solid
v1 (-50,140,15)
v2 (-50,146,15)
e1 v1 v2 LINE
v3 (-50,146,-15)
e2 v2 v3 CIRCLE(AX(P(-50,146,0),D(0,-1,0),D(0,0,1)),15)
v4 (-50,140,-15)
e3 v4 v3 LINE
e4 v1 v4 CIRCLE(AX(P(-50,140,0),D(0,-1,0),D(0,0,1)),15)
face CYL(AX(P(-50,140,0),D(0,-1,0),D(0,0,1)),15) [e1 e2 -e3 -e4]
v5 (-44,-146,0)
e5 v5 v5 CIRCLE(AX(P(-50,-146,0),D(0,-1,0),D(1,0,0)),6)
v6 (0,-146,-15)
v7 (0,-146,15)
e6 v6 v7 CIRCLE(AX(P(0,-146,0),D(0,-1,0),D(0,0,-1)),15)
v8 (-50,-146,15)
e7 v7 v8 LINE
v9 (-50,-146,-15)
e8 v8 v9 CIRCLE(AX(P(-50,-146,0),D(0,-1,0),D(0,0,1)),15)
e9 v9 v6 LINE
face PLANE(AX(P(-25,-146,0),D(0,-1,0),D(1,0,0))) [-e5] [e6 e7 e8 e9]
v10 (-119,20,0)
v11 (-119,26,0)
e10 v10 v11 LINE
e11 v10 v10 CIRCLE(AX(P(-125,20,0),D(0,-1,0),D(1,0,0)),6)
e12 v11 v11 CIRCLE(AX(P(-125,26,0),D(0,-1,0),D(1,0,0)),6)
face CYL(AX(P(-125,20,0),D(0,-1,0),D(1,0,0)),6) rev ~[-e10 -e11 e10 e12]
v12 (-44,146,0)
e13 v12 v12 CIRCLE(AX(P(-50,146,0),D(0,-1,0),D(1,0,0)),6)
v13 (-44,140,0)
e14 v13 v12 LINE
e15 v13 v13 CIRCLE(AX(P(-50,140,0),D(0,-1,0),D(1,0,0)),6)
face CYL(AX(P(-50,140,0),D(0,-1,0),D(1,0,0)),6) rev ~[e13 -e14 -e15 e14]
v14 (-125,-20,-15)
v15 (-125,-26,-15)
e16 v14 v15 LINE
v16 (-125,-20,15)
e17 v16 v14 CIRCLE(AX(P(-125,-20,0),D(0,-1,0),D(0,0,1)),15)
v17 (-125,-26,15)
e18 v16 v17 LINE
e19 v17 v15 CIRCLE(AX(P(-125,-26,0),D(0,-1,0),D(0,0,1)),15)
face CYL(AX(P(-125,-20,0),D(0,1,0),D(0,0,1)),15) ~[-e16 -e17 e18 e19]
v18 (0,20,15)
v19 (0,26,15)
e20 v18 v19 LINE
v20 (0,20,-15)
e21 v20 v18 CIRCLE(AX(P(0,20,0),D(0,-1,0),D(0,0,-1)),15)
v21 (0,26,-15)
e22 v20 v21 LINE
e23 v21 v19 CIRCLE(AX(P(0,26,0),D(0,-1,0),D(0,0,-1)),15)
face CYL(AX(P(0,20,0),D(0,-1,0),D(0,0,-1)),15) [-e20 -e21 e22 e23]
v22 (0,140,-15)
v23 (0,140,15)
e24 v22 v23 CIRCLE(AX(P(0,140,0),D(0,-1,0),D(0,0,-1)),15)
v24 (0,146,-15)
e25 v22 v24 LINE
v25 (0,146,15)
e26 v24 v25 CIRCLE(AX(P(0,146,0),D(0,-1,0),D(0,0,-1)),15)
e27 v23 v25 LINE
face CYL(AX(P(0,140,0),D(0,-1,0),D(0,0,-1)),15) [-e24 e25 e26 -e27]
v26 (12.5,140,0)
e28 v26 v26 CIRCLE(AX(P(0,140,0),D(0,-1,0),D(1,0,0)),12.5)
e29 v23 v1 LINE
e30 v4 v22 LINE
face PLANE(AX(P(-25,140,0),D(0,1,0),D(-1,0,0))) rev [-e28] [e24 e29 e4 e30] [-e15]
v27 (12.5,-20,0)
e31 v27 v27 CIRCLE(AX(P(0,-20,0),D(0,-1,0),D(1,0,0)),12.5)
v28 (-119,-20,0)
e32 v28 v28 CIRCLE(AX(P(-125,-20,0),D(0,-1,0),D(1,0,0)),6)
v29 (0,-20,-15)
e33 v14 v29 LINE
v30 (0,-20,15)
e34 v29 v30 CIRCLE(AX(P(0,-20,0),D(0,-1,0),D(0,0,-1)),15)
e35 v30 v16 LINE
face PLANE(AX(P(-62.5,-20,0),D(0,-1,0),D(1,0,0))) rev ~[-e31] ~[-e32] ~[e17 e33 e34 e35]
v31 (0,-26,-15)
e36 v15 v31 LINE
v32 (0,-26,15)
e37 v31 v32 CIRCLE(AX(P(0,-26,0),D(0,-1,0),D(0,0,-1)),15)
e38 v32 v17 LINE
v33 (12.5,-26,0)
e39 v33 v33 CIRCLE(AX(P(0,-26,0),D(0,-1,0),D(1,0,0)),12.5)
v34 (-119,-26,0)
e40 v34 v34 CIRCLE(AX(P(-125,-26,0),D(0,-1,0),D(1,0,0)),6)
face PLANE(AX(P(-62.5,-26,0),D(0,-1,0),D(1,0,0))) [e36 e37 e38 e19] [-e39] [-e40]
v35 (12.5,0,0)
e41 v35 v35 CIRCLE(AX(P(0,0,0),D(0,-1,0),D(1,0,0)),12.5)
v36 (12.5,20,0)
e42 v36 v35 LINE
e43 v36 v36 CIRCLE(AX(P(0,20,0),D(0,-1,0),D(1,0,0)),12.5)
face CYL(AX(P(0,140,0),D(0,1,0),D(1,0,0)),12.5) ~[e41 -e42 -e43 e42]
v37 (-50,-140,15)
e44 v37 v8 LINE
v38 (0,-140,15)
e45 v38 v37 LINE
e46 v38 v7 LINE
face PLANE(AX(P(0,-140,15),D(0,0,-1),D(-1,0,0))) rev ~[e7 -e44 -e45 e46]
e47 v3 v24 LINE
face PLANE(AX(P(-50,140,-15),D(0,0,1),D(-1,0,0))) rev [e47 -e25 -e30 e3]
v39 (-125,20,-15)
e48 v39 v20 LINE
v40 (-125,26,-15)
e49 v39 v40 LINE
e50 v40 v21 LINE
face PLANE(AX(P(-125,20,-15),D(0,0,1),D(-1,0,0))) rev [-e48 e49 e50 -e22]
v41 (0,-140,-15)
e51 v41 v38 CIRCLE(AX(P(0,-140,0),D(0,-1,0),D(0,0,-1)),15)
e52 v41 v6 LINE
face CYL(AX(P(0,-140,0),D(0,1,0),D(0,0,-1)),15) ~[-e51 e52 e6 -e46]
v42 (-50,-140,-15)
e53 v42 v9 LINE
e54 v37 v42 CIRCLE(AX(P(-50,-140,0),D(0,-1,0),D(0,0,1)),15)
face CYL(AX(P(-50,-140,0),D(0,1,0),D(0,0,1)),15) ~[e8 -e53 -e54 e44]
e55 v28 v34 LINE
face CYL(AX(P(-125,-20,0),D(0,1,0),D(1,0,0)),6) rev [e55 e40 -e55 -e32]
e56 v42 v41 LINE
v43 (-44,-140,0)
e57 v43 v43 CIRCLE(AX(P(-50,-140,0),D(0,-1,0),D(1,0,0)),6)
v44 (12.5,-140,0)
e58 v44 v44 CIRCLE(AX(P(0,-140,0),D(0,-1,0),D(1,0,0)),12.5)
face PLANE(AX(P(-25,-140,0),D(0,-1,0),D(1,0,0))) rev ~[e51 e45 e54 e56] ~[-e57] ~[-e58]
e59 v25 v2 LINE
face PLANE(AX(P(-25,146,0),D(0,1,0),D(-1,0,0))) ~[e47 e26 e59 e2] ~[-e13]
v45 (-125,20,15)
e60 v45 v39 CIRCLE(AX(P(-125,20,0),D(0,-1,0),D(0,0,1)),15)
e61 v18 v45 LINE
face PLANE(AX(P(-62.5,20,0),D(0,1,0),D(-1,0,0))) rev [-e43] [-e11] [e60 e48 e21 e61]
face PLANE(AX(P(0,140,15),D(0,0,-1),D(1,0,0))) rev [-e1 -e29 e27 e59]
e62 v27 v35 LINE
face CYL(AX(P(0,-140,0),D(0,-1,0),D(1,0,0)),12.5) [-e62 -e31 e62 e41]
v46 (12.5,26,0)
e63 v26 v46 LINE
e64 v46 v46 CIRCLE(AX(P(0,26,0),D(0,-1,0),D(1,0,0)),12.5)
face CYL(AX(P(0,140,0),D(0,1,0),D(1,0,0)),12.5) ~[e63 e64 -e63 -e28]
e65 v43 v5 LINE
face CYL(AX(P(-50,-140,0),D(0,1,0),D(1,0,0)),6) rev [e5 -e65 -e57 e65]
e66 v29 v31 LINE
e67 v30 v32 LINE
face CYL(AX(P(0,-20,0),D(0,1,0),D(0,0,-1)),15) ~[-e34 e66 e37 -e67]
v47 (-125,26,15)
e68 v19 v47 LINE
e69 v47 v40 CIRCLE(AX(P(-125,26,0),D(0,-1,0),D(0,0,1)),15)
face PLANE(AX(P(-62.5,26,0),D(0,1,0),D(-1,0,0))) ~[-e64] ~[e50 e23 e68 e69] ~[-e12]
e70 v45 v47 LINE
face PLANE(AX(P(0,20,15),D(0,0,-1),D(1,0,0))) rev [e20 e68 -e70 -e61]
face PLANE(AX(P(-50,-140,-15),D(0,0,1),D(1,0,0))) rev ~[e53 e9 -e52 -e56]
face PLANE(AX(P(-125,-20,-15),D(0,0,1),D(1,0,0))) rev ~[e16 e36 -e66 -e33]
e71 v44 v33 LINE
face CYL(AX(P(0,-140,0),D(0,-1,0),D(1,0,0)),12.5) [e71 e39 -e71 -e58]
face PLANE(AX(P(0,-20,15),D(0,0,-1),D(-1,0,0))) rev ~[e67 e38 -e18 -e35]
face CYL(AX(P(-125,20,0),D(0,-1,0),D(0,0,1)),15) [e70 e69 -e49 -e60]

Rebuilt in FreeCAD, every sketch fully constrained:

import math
import FreeCAD as App
import Part
import Sketcher
from FreeCAD import Vector

doc = App.newDocument("Part")
body = doc.addObject("PartDesign::Body", "Body")

# Sketch on XZ plane
sketch1 = body.newObject("Sketcher::SketchObject", "Sketch")
sketch1.AttachmentSupport = (doc.getObject("XZ_Plane"), [""])
sketch1.MapMode = "FlatFace"
sketch1.AttachmentOffset = App.Placement(Vector(0, 0, 140), App.Rotation())
sketch1.addGeometry([
    Part.LineSegment(Vector(-50, -15, 0), Vector(0, -15, 0)),  # 0
    Part.ArcOfCircle(Part.Circle(Vector(0, 0, 0), Vector(0, 0, 1), 15), math.radians(-90), math.radians(90)),  # 1
    Part.LineSegment(Vector(0, 15, 0), Vector(-50, 15, 0)),  # 2
    Part.ArcOfCircle(Part.Circle(Vector(-50, 0, 0), Vector(0, 0, 1), 15), math.radians(90), math.radians(270)),  # 3
    Part.Circle(Vector(-50, 0, 0), Vector(0, 0, 1), 6),  # 4
], False)
sketch1.addConstraint([
    Sketcher.Constraint("Tangent", 0, 2, 1, 1),
    Sketcher.Constraint("Tangent", 1, 2, 2, 1),
    Sketcher.Constraint("Tangent", 2, 2, 3, 1),
    Sketcher.Constraint("Tangent", 3, 2, 0, 1),
    Sketcher.Constraint("Horizontal", 0),
    Sketcher.Constraint("Horizontal", 2),
    Sketcher.Constraint("Coincident", 1, 3, -1, 1),
    Sketcher.Constraint("Coincident", 4, 3, 3, 3),
    Sketcher.Constraint("Diameter", 4, 12.0),
    Sketcher.Constraint("Radius", 1, 15.0),
    Sketcher.Constraint("DistanceX", 0, 1, 0, 2, 50.0),
])
pad1 = body.newObject("PartDesign::Pad", "Pad")
pad1.Profile = sketch1
pad1.Length = 6

# Sketch on XZ plane
sketch2 = body.newObject("Sketcher::SketchObject", "Sketch001")
sketch2.AttachmentSupport = (doc.getObject("XZ_Plane"), [""])
sketch2.MapMode = "FlatFace"
sketch2.AttachmentOffset = App.Placement(Vector(0, 0, 140), App.Rotation())
sketch2.addGeometry(Part.Circle(Vector(0, 0, 0), Vector(0, 0, 1), 12.5), False)
sketch2.addConstraint([
    Sketcher.Constraint("Coincident", 0, 3, -1, 1),
    Sketcher.Constraint("Diameter", 0, 25.0),
])
pad2 = body.newObject("PartDesign::Pad", "Pad001")
pad2.Profile = sketch2
pad2.Length = 140
pad2.Reversed = True

# Sketch on XZ plane
sketch3 = body.newObject("Sketcher::SketchObject", "Sketch002")
sketch3.AttachmentSupport = (doc.getObject("XZ_Plane"), [""])
sketch3.MapMode = "FlatFace"
sketch3.AttachmentOffset = App.Placement(Vector(0, 0, 20), App.Rotation())
sketch3.addGeometry([
    Part.LineSegment(Vector(-125, -15, 0), Vector(0, -15, 0)),  # 0
    Part.ArcOfCircle(Part.Circle(Vector(0, 0, 0), Vector(0, 0, 1), 15), math.radians(-90), math.radians(90)),  # 1
    Part.LineSegment(Vector(0, 15, 0), Vector(-125, 15, 0)),  # 2
    Part.ArcOfCircle(Part.Circle(Vector(-125, 0, 0), Vector(0, 0, 1), 15), math.radians(90), math.radians(270)),  # 3
    Part.Circle(Vector(-125, 0, 0), Vector(0, 0, 1), 6),  # 4
], False)
sketch3.addConstraint([
    Sketcher.Constraint("Tangent", 0, 2, 1, 1),
    Sketcher.Constraint("Tangent", 1, 2, 2, 1),
    Sketcher.Constraint("Tangent", 2, 2, 3, 1),
    Sketcher.Constraint("Tangent", 3, 2, 0, 1),
    Sketcher.Constraint("Horizontal", 0),
    Sketcher.Constraint("Horizontal", 2),
    Sketcher.Constraint("Coincident", 1, 3, -1, 1),
    Sketcher.Constraint("Coincident", 4, 3, 3, 3),
    Sketcher.Constraint("Diameter", 4, 12.0),
    Sketcher.Constraint("Radius", 1, 15.0),
    Sketcher.Constraint("DistanceX", 0, 1, 0, 2, 125.0),
])
pad3 = body.newObject("PartDesign::Pad", "Pad002")
pad3.Profile = sketch3
pad3.Length = 6
body2 = doc.addObject("PartDesign::Body", "Body001")
doc.recompute()

body2.BaseFeature = body
doc.recompute()

mirroring = doc.addObject("Part::Mirroring", "Mirroring")
mirroring.Source = body
mirroring.Base = Vector(0, 0, 0)
mirroring.Normal = Vector(0, 1, 0)
body3 = doc.addObject("PartDesign::Body", "Body002")
body3.BaseFeature = mirroring
boolean = body2.newObject("PartDesign::Boolean", "Boolean")
boolean.Type = "Fuse"
boolean.addObjects([body3])
doc.recompute()
mirroring.Visibility = False

doc.recompute()
